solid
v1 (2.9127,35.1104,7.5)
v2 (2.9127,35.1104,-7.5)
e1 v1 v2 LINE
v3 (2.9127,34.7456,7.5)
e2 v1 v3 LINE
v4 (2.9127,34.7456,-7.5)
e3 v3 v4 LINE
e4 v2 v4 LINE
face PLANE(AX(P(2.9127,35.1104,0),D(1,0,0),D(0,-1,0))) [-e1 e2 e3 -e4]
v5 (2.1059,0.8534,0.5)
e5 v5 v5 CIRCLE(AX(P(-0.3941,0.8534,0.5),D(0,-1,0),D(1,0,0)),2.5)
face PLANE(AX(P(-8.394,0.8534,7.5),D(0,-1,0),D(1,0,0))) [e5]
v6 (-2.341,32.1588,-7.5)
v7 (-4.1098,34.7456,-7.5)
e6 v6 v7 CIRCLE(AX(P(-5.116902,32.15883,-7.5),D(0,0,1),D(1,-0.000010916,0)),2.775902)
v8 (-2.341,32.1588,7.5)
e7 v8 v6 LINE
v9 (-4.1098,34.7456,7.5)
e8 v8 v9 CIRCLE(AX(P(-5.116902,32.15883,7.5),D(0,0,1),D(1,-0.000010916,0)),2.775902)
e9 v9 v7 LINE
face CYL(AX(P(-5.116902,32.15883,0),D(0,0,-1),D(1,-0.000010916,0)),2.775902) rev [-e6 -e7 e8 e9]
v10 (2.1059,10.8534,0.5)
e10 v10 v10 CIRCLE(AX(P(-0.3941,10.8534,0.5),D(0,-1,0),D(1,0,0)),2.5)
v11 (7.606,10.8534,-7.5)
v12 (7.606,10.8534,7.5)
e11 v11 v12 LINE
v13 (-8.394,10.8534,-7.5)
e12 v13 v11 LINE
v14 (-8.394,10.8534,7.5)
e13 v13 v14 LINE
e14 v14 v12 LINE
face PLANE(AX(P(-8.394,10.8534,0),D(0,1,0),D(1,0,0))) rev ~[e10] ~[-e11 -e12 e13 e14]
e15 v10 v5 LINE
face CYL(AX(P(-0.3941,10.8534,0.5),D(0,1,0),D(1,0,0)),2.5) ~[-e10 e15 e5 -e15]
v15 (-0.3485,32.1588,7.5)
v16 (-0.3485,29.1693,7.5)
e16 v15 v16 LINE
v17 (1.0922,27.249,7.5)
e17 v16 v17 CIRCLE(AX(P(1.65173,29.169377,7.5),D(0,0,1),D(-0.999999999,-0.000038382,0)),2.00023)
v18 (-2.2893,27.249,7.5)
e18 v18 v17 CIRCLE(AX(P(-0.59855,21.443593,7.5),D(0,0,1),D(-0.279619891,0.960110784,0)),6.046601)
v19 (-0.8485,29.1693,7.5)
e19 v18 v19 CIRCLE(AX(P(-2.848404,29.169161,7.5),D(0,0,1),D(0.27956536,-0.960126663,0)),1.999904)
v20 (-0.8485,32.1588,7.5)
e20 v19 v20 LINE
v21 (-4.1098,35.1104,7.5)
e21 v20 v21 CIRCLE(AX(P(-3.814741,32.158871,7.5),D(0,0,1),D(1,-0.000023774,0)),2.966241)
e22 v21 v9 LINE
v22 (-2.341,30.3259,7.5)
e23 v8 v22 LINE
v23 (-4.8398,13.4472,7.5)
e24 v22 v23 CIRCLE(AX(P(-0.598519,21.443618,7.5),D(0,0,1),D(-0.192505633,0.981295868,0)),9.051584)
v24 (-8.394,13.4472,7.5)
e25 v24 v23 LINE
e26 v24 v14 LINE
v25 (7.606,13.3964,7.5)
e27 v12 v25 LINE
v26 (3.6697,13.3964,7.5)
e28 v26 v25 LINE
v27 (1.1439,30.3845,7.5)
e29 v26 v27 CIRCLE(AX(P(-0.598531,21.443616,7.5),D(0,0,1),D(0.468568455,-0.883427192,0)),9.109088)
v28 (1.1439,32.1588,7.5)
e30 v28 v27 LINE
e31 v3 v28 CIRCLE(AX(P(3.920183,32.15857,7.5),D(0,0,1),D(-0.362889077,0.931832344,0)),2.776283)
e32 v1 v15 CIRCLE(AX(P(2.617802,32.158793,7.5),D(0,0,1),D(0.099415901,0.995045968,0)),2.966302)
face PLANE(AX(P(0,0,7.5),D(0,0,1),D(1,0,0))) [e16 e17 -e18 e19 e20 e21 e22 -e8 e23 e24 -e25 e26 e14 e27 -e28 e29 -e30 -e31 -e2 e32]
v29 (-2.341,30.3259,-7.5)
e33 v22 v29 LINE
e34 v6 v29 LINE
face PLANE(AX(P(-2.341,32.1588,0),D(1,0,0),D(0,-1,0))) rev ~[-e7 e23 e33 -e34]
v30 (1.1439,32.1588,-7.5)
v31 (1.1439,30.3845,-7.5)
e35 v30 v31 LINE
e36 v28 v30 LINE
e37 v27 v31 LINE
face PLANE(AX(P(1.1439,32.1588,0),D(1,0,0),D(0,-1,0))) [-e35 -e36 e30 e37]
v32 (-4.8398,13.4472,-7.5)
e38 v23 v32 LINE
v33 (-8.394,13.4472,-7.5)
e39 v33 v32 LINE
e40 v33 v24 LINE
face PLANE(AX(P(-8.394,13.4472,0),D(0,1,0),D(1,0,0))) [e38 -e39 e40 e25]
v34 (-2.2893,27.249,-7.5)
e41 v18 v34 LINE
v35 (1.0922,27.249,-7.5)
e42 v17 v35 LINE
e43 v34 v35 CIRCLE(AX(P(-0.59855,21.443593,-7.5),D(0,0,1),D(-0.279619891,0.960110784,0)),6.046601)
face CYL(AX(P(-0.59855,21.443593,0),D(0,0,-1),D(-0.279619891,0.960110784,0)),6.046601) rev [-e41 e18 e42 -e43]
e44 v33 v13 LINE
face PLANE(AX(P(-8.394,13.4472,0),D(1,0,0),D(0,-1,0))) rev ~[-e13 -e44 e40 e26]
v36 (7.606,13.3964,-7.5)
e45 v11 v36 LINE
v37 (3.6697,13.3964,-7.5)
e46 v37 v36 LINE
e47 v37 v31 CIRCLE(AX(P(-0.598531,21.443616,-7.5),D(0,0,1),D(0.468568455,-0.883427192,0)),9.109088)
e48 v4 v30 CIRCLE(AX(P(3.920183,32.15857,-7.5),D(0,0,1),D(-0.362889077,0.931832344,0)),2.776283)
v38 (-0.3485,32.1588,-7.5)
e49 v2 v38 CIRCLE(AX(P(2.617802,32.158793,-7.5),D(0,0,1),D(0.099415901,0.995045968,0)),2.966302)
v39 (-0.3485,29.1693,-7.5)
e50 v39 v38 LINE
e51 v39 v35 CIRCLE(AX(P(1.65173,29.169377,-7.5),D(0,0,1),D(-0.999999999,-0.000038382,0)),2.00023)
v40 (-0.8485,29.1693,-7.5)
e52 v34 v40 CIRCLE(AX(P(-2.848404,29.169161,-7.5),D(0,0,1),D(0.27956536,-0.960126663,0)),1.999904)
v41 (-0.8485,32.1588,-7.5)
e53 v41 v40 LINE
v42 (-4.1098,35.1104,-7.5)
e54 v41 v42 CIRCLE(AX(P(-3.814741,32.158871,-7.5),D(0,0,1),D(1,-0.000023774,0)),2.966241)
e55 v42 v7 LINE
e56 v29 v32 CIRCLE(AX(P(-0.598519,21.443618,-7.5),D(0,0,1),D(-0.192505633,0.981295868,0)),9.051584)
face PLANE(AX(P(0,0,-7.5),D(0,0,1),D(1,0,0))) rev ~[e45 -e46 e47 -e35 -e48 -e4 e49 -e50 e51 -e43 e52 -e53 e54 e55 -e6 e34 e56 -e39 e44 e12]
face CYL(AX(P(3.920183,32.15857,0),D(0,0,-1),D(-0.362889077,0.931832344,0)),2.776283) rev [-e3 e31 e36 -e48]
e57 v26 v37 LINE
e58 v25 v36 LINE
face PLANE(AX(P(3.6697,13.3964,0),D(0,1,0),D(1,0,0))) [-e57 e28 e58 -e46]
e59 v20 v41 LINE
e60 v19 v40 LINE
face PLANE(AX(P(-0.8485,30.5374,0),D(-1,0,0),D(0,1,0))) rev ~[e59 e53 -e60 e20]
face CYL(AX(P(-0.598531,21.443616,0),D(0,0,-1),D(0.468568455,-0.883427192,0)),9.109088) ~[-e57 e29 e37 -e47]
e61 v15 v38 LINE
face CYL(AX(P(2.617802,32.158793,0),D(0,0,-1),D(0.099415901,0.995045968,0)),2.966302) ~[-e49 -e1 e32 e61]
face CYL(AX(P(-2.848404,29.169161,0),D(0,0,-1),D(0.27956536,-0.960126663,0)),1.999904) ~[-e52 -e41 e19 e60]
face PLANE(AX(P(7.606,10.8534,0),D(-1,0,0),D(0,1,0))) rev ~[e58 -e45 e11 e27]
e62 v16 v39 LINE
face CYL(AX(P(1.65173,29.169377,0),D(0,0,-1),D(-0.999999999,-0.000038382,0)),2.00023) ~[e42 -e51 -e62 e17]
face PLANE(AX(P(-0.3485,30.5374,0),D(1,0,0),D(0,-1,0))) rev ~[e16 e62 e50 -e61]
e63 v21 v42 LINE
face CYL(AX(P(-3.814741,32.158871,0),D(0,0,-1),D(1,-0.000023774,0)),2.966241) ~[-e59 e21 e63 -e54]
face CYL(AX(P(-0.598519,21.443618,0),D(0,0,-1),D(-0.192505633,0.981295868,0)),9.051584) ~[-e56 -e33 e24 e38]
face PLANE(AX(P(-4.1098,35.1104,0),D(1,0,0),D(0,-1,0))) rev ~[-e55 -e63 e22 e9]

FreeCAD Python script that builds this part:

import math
import FreeCAD as App
import Part
import Sketcher
from FreeCAD import Vector

doc = App.newDocument("Part")
body = doc.addObject("PartDesign::Body", "Body")

sketch1 = doc.addObject("Sketcher::SketchObject", "Sketch")
body.addObject(sketch1)
sketch1.AttachmentSupport = (doc.XY_Plane, [""])
sketch1.MapMode = "FlatFace"
sketch1.addGeometry([
    Part.LineSegment(Vector(-4.84, 13.45, 0), Vector(-8.39, 13.45, 0)),
    Part.LineSegment(Vector(-8.39, 13.45, 0), Vector(-8.39, 10.85, 0)),
    Part.LineSegment(Vector(-8.39, 10.85, 0), Vector(7.61, 10.85, 0)),
    Part.LineSegment(Vector(7.61, 10.85, 0), Vector(7.61, 13.4, 0)),
    Part.LineSegment(Vector(7.61, 13.4, 0), Vector(3.67, 13.4, 0)),
    Part.ArcOfCircle(Part.Circle(Vector(-0.6, 21.44, 0), Vector(0, 0, 1), 9.11), math.radians(-62), math.radians(79)),
    Part.LineSegment(Vector(1.14, 30.38, 0), Vector(1.14, 32.16, 0)),
    Part.ArcOfCircle(Part.Circle(Vector(3.92, 32.16, 0), Vector(0, 0, 1), 2.78), math.radians(111), math.radians(180)),
    Part.LineSegment(Vector(2.91, 34.75, 0), Vector(2.91, 35.11, 0)),
    Part.ArcOfCircle(Part.Circle(Vector(2.62, 32.16, 0), Vector(0, 0, 1), 2.97), math.radians(84), math.radians(180)),
    Part.LineSegment(Vector(-0.35, 32.16, 0), Vector(-0.35, 29.17, 0)),
    Part.ArcOfCircle(Part.Circle(Vector(1.65, 29.17, 0), Vector(0, 0, 1), 2), math.radians(180), math.radians(254)),
    Part.ArcOfCircle(Part.Circle(Vector(-0.6, 21.44, 0), Vector(0, 0, 1), 6.05), math.radians(106), math.radians(434)),
    Part.ArcOfCircle(Part.Circle(Vector(-2.85, 29.17, 0), Vector(0, 0, 1), 2), math.radians(-74), math.radians(0)),
    Part.LineSegment(Vector(-0.85, 29.17, 0), Vector(-0.85, 32.16, 0)),
    Part.ArcOfCircle(Part.Circle(Vector(-3.81, 32.16, 0), Vector(0, 0, 1), 2.97), math.radians(0), math.radians(96)),
    Part.LineSegment(Vector(-4.11, 35.11, 0), Vector(-4.11, 34.75, 0)),
    Part.ArcOfCircle(Part.Circle(Vector(-5.12, 32.16, 0), Vector(0, 0, 1), 2.78), math.radians(0), math.radians(69)),
    Part.LineSegment(Vector(-2.34, 32.16, 0), Vector(-2.34, 30.33, 0)),
    Part.ArcOfCircle(Part.Circle(Vector(-0.6, 21.44, 0), Vector(0, 0, 1), 9.05), math.radians(101), math.radians(242)),
], False)
sketch1.addConstraint([
    Sketcher.Constraint("Coincident", 0, 2, 1, 1),
    Sketcher.Constraint("Coincident", 1, 2, 2, 1),
    Sketcher.Constraint("Coincident", 2, 2, 3, 1),
    Sketcher.Constraint("Coincident", 3, 2, 4, 1),
    Sketcher.Constraint("Coincident", 4, 2, 5, 1),
    Sketcher.Constraint("Coincident", 5, 2, 6, 1),
    Sketcher.Constraint("Tangent", 6, 2, 7, 2),
    Sketcher.Constraint("Coincident", 7, 1, 8, 1),
    Sketcher.Constraint("Coincident", 8, 2, 9, 1),
    Sketcher.Constraint("Tangent", 9, 2, 10, 1),
    Sketcher.Constraint("Tangent", 10, 2, 11, 1),
    Sketcher.Constraint("Tangent", 11, 2, 12, 2),
    Sketcher.Constraint("Tangent", 12, 1, 13, 1),
    Sketcher.Constraint("Tangent", 13, 2, 14, 1),
    Sketcher.Constraint("Tangent", 14, 2, 15, 1),
    Sketcher.Constraint("Coincident", 15, 2, 16, 1),
    Sketcher.Constraint("Coincident", 16, 2, 17, 2),
    Sketcher.Constraint("Tangent", 17, 1, 18, 1),
    Sketcher.Constraint("Coincident", 18, 2, 19, 1),
    Sketcher.Constraint("Coincident", 19, 2, 0, 1),
    Sketcher.Constraint("Horizontal", 0),
    Sketcher.Constraint("Vertical", 1),
    Sketcher.Constraint("Horizontal", 2),
    Sketcher.Constraint("Vertical", 3),
    Sketcher.Constraint("Horizontal", 4),
    Sketcher.Constraint("Vertical", 6),
    Sketcher.Constraint("Vertical", 8),
    Sketcher.Constraint("Vertical", 10),
    Sketcher.Constraint("Vertical", 14),
    Sketcher.Constraint("Vertical", 16),
    Sketcher.Constraint("Vertical", 18),
    Sketcher.Constraint("Coincident", 12, 3, 5, 3),
    Sketcher.Constraint("Coincident", 19, 3, 5, 3),
    Sketcher.Constraint("Equal", 11, 13),
    Sketcher.Constraint("Equal", 9, 15),
    Sketcher.Constraint("Equal", 7, 17),
    Sketcher.Constraint("Horizontal", 7, 3, 9, 3),
    Sketcher.Constraint("Horizontal", 11, 3, 13, 3),
    Sketcher.Constraint("Horizontal", 9, 3, 15, 3),
    Sketcher.Constraint("Horizontal", 15, 3, 17, 3),
    Sketcher.Constraint("Horizontal", 8, 2, 15, 2),
    Sketcher.Constraint("Horizontal", 7, 1, 16, 2),
    Sketcher.Constraint("Radius", 11, 2.0),
    Sketcher.Constraint("DistanceX", 2, 1, 2, 2, 16.0),
    Sketcher.Constraint("DistanceX", 13, 2, 10, 2, 0.5),
    Sketcher.Constraint("Radius", 5, 9.109),
    Sketcher.Constraint("Radius", 7, 2.776),
    Sketcher.Constraint("Radius", 9, 2.9663),
    Sketcher.Constraint("Radius", 12, 6.0466),
    Sketcher.Constraint("Radius", 19, 9.0516),
    Sketcher.Constraint("DistanceY", 3, 1, 3, 2, 2.543),
    Sketcher.Constraint("DistanceY", 18, 2, 18, 1, 1.833),
    Sketcher.Constraint("DistanceX", -1, 1, 7, 3, 3.92),
    Sketcher.Constraint("DistanceX", 0, 2, 0, 1, 3.5542),
    Sketcher.Constraint("DistanceX", 4, 2, 4, 1, 3.9363),
    Sketcher.Constraint("DistanceY", 1, 2, 1, 1, 2.5938),
    Sketcher.Constraint("DistanceY", 8, 1, 8, 2, 0.3648),
    Sketcher.Constraint("DistanceY", 10, 2, 10, 1, 2.9895),
    Sketcher.Constraint("DistanceY", -1, 1, 11, 2, 27.249),
])
pad1 = doc.addObject("PartDesign::Pad", "Pad")
body.addObject(pad1)
pad1.Profile = sketch1
pad1.Length = 15
pad1.Midplane = True

sketch2 = doc.addObject("Sketcher::SketchObject", "Sketch001")
body.addObject(sketch2)
sketch2.AttachmentSupport = (doc.XZ_Plane, [""])
sketch2.MapMode = "FlatFace"
sketch2.AttachmentOffset = App.Placement(Vector(0, 0, -10.8534), App.Rotation())
sketch2.addGeometry(Part.Circle(Vector(-0.4, 0.5, 0), Vector(0, 0, 1), 2.5), False)
sketch2.addConstraint([
    Sketcher.Constraint("Diameter", 0, 5.0),
    Sketcher.Constraint("DistanceY", -1, 1, 0, 3, 0.5),
    Sketcher.Constraint("DistanceX", 0, 3, -1, 1, 0.394),
])
pad2 = doc.addObject("PartDesign::Pad", "Pad001")
body.addObject(pad2)
pad2.Profile = sketch2
pad2.Length = 10

doc.recompute()
